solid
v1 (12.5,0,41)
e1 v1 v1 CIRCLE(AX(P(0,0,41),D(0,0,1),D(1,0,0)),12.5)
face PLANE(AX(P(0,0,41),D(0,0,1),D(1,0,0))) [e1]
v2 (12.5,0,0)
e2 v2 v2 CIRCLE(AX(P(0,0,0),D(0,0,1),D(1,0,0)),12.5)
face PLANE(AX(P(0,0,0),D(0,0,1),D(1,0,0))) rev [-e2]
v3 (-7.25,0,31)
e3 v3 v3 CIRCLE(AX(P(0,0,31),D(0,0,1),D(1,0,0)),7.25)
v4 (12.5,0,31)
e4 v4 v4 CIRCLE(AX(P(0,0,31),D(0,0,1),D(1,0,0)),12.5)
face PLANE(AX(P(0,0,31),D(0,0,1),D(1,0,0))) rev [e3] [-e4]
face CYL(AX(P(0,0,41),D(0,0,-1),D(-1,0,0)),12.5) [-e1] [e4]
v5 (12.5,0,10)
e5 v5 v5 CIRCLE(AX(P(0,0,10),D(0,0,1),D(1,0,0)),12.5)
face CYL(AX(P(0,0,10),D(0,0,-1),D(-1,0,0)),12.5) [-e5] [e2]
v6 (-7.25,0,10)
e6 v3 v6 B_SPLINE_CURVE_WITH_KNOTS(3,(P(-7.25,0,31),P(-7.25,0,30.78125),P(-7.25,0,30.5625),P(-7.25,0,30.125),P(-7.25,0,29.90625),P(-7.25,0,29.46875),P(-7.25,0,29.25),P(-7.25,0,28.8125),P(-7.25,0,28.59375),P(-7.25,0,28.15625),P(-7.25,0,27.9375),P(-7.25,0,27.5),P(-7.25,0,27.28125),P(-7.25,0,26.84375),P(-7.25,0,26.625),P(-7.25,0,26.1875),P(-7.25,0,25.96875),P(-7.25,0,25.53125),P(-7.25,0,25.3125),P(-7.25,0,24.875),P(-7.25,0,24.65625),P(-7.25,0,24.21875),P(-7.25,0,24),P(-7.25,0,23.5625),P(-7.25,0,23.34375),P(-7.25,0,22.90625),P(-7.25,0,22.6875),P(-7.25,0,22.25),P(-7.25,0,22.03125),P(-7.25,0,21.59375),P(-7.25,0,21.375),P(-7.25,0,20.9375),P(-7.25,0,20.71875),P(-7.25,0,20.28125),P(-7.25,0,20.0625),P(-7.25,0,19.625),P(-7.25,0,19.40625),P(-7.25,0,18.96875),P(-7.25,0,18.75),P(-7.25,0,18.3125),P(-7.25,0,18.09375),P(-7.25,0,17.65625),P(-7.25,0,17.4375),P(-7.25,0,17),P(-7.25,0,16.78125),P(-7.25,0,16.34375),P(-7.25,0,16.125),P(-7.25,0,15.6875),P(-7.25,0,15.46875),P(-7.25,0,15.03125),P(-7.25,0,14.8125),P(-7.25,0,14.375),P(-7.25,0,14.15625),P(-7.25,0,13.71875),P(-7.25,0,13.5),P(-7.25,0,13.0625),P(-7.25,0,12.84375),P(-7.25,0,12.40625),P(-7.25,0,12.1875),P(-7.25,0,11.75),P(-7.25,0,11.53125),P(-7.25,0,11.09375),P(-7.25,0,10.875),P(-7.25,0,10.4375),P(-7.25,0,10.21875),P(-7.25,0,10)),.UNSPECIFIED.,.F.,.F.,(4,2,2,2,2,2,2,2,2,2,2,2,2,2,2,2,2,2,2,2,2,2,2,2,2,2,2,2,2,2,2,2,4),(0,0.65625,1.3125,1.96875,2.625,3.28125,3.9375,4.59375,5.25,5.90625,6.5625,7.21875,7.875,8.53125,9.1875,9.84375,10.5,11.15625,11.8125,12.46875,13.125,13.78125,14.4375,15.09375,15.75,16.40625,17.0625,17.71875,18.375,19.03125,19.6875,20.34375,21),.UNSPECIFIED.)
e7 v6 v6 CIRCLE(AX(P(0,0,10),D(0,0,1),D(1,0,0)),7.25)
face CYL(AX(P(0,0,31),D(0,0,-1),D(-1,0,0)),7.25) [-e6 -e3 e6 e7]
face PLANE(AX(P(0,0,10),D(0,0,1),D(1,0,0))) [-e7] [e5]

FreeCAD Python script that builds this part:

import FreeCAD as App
import Part
import Sketcher

V = App.Vector

doc = App.newDocument("Part")
body = doc.addObject("PartDesign::Body", "Body")

# Sketch on XY plane
sketch1 = doc.addObject("Sketcher::SketchObject", "Sketch")
body.addObject(sketch1)
sketch1.AttachmentSupport = (doc.XY_Plane, [""])
sketch1.MapMode = "FlatFace"
sketch1.addGeometry(Part.Circle(V(0, 0, 0), V(0, 0, 1), 12.5), False)
sketch1.addConstraint(Sketcher.Constraint("Coincident", 0, 3, -1, 1))
sketch1.addConstraint(Sketcher.Constraint("Diameter", 0, 25.0))
pad1 = doc.addObject("PartDesign::Pad", "Pad")
body.addObject(pad1)
pad1.Profile = sketch1
pad1.Length = 10

# Sketch on XY plane
sketch2 = doc.addObject("Sketcher::SketchObject", "Sketch001")
body.addObject(sketch2)
sketch2.AttachmentSupport = (doc.XY_Plane, [""])
sketch2.MapMode = "FlatFace"
sketch2.AttachmentOffset = App.Placement(V(0, 0, 10), App.Rotation())
sketch2.addGeometry(Part.Circle(V(0, 0, 0), V(0, 0, 1), 7.25), False)
sketch2.addConstraint(Sketcher.Constraint("Coincident", 0, 3, -1, 1))
sketch2.addConstraint(Sketcher.Constraint("Diameter", 0, 14.5))
pad2 = doc.addObject("PartDesign::Pad", "Pad001")
body.addObject(pad2)
pad2.Profile = sketch2
pad2.Length = 21

# Sketch on XY plane
sketch3 = doc.addObject("Sketcher::SketchObject", "Sketch002")
body.addObject(sketch3)
sketch3.AttachmentSupport = (doc.XY_Plane, [""])
sketch3.MapMode = "FlatFace"
sketch3.AttachmentOffset = App.Placement(V(0, 0, 31), App.Rotation())
sketch3.addGeometry(Part.Circle(V(0, 0, 0), V(0, 0, 1), 12.5), False)
sketch3.addConstraint(Sketcher.Constraint("Coincident", 0, 3, -1, 1))
sketch3.addConstraint(Sketcher.Constraint("Diameter", 0, 25.0))
pad3 = doc.addObject("PartDesign::Pad", "Pad002")
body.addObject(pad3)
pad3.Profile = sketch3
pad3.Length = 10

doc.recompute()
